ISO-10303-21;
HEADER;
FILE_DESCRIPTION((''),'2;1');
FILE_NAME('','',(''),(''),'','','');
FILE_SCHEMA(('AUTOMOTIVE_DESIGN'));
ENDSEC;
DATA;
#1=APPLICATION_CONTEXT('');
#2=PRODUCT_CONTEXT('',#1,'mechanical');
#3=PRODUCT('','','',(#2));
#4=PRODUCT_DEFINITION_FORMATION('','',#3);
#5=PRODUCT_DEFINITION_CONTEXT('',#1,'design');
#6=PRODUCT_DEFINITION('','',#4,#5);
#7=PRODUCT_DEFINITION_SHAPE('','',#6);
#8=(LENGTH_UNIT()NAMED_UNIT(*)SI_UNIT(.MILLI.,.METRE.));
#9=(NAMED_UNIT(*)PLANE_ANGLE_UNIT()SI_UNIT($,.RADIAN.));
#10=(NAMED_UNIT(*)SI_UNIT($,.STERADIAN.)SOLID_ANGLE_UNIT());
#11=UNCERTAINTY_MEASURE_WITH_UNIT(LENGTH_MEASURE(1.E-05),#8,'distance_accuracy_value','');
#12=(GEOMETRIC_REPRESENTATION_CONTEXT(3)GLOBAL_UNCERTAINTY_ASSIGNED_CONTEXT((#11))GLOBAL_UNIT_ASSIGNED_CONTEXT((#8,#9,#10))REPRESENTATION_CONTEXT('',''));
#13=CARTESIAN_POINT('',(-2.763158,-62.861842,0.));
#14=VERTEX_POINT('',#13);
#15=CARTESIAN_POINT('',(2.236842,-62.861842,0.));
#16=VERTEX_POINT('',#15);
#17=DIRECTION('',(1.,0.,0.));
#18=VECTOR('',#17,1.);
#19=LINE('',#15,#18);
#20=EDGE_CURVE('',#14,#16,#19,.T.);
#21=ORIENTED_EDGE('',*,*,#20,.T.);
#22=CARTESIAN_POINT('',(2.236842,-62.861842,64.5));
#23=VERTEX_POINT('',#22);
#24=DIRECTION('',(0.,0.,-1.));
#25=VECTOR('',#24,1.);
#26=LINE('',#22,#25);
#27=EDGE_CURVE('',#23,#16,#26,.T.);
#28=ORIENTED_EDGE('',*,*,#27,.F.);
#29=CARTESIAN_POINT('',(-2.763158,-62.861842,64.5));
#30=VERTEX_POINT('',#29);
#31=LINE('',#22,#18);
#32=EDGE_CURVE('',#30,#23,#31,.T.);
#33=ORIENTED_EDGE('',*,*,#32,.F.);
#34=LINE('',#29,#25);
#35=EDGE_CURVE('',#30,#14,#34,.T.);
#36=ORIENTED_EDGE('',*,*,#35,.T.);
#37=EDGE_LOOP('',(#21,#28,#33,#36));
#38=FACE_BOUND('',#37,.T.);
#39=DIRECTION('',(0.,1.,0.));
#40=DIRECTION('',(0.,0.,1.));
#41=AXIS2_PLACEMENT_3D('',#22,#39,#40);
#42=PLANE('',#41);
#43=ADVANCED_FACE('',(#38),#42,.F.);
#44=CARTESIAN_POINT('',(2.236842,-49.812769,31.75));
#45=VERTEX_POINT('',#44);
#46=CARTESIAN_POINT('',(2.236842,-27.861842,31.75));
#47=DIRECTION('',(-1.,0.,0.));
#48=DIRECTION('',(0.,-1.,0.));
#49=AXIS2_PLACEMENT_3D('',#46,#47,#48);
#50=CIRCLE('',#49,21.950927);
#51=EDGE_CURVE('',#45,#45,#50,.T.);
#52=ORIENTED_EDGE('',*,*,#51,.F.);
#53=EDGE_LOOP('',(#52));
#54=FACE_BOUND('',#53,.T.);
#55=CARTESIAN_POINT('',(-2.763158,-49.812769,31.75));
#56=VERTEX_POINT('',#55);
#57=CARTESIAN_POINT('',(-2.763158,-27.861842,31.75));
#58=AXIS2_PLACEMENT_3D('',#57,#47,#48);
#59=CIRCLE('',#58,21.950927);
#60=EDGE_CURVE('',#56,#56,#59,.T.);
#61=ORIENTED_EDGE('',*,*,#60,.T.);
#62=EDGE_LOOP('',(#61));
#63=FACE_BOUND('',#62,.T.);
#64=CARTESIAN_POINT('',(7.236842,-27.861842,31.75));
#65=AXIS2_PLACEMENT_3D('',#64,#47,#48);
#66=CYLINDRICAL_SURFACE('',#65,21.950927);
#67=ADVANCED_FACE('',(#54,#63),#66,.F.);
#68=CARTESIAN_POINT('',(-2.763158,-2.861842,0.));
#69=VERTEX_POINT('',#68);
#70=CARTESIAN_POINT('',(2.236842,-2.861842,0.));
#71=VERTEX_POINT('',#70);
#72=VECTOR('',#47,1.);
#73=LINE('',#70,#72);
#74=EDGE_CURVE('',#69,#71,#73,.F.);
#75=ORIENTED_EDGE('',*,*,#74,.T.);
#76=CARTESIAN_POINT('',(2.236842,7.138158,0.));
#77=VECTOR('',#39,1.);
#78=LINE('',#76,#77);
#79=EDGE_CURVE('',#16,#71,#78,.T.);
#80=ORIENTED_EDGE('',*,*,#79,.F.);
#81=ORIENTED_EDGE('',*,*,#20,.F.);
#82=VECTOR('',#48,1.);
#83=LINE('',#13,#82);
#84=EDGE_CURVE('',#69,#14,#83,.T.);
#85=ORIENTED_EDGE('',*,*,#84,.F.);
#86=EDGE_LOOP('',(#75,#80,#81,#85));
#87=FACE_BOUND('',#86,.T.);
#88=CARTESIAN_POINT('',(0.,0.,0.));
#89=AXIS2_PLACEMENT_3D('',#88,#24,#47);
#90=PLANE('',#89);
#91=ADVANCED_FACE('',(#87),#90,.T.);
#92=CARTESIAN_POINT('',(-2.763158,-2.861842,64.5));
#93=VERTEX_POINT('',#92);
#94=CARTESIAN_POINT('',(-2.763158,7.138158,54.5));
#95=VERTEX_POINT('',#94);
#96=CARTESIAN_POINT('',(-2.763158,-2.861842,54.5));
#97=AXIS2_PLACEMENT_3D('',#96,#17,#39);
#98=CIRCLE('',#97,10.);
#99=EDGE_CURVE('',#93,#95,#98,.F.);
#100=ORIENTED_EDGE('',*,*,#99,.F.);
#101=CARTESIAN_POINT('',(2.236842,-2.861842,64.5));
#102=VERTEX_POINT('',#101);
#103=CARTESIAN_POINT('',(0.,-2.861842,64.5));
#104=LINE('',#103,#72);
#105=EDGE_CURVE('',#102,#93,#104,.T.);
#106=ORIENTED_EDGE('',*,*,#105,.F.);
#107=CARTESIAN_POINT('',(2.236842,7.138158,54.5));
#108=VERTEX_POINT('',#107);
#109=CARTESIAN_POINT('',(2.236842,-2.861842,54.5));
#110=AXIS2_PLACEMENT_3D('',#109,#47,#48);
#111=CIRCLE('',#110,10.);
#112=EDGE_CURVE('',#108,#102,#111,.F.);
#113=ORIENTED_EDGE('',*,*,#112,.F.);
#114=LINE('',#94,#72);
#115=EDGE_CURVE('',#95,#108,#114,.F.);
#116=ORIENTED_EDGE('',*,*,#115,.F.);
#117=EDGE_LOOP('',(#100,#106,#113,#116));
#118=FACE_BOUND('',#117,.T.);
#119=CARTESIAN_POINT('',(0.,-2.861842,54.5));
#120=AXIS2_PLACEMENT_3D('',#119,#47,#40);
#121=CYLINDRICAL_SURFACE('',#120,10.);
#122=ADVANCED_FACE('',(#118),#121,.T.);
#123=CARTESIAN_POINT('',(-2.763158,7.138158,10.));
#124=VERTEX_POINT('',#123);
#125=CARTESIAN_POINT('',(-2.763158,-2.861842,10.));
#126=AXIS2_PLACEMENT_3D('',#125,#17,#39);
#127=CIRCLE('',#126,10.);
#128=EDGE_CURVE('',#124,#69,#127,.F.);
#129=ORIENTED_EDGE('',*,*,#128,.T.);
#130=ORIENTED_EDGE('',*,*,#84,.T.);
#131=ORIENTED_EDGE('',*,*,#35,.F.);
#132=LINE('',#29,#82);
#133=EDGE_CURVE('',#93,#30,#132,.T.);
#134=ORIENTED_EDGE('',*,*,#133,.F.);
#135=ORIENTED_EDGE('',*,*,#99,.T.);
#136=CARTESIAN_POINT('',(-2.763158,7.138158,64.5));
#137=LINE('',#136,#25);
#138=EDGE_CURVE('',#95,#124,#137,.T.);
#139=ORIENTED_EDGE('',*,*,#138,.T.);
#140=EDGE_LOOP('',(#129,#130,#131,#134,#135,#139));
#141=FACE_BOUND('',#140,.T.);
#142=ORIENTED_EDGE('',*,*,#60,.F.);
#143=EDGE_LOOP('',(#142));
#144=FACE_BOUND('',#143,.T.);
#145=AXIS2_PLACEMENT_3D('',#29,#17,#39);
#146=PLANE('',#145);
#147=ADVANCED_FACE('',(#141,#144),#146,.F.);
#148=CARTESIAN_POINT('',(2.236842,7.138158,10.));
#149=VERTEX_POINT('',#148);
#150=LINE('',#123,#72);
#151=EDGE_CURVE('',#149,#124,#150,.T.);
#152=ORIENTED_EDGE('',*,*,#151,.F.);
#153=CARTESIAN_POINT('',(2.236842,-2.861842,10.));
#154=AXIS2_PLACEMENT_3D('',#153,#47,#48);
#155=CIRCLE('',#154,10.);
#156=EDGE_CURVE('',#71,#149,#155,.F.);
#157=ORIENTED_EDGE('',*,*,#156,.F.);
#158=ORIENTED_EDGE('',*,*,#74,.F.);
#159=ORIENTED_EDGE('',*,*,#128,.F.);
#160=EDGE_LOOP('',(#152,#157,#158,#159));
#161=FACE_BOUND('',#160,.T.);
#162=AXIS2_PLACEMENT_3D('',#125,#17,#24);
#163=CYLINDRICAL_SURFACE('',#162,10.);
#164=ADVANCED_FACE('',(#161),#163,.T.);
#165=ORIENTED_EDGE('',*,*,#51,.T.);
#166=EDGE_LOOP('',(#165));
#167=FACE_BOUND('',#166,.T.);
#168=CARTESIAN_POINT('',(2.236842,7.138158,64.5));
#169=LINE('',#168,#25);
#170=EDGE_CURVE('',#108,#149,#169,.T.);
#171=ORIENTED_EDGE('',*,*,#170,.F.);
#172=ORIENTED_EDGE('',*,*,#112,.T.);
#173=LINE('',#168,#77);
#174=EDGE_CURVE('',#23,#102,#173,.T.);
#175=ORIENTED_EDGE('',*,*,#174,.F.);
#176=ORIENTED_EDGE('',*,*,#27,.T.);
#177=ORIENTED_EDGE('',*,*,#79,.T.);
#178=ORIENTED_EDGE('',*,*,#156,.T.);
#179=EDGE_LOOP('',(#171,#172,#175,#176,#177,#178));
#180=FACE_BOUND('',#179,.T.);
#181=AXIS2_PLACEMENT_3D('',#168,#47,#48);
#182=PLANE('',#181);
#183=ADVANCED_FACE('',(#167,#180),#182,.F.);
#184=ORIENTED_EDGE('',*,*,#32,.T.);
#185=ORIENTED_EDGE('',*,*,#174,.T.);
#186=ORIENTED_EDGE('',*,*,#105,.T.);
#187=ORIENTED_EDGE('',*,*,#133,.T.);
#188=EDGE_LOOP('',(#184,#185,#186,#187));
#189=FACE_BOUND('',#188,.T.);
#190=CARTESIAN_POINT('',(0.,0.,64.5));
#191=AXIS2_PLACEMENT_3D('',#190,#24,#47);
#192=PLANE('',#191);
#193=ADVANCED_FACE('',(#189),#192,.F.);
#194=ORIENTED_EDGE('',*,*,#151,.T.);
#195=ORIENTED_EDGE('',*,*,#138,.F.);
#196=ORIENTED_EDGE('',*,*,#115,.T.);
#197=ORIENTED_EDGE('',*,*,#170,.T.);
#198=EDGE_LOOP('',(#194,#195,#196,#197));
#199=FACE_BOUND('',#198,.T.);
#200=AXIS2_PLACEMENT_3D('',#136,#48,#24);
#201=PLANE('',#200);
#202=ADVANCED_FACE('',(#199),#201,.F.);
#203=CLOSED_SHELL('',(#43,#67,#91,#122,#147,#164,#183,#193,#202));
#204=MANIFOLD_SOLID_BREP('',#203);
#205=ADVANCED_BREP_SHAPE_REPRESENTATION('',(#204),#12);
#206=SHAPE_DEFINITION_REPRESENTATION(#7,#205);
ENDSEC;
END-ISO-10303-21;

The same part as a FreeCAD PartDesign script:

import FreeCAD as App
import Part
import Sketcher

V = App.Vector


def edges_at(feature, points):
    """Names of the edges that pass closest to the given points."""
    edges = feature.Shape.Edges
    near = lambda p: min(range(len(edges)), key=lambda i: edges[i].distToShape(Part.Vertex(*p))[0])
    return sorted({f"Edge{near(p) + 1}" for p in points})


def add_polygon(sketch, points):
    """Adds a closed chain of lines whose ends are joined by coincident constraints."""
    first, n = sketch.GeometryCount, len(points)
    for a, b in zip(points, points[1:] + points[:1]):
        sketch.addGeometry(Part.LineSegment(App.Vector(*a, 0), App.Vector(*b, 0)), False)
    for i in range(n):
        sketch.addConstraint(Sketcher.Constraint("Coincident", first + i, 2, first + (i + 1) % n, 1))

doc = App.newDocument("Part")
body = doc.addObject("PartDesign::Body", "Body")

sketch1 = body.newObject("Sketcher::SketchObject", "Sketch")
sketch1.AttachmentSupport = (doc.getObject("XY_Plane"), [""])
sketch1.MapMode = "FlatFace"
add_polygon(sketch1, [(-2.763158, 7.138158), (-2.763158, -62.861842), (2.236842, -62.861842), (2.236842, 7.138158)])
sketch1.addConstraint([
    Sketcher.Constraint("Vertical", 0),
    Sketcher.Constraint("Horizontal", 1),
    Sketcher.Constraint("Vertical", 2),
    Sketcher.Constraint("Horizontal", 3),
    Sketcher.Constraint("DistanceX", 1, 1, 1, 2, 5.0),
    Sketcher.Constraint("DistanceY", 0, 2, 0, 1, 70.0),
    Sketcher.Constraint("DistanceX", 0, 2, -1, 1, 2.763158),
    Sketcher.Constraint("DistanceY", 0, 2, -1, 1, 62.861842),
])
pad1 = body.newObject("PartDesign::Pad", "Pad")
pad1.Profile = sketch1
pad1.Length = 64.5
doc.recompute()

fillet = body.newObject("PartDesign::Fillet", "Fillet")
fillet.Base = (pad1, edges_at(pad1, [(-0.263, 7.138, 64.5)]))
fillet.Radius = 10
doc.recompute()

fillet2 = body.newObject("PartDesign::Fillet", "Fillet001")
fillet2.Base = (fillet, edges_at(fillet, [(-0.263, 7.138, 0)]))
fillet2.Radius = 10

sketch2 = body.newObject("Sketcher::SketchObject", "Sketch001")
sketch2.AttachmentSupport = (doc.getObject("YZ_Plane"), [""])
sketch2.MapMode = "FlatFace"
sketch2.AttachmentOffset = App.Placement(V(0, 0, -2.763158), App.Rotation())
sketch2.addGeometry(Part.Circle(V(-27.861842, 31.75, 0), V(0, 0, 1), 21.950927), False)
sketch2.addConstraint([
    Sketcher.Constraint("DistanceY", -1, 1, 0, 3, 31.75),
    Sketcher.Constraint("Diameter", 0, 43.901854),
    Sketcher.Constraint("DistanceX", 0, 3, -1, 1, 27.861842),
])
pocket1 = body.newObject("PartDesign::Pocket", "Pocket")
pocket1.Profile = sketch2
pocket1.Length = 10
pocket1.Reversed = True

doc.recompute()
